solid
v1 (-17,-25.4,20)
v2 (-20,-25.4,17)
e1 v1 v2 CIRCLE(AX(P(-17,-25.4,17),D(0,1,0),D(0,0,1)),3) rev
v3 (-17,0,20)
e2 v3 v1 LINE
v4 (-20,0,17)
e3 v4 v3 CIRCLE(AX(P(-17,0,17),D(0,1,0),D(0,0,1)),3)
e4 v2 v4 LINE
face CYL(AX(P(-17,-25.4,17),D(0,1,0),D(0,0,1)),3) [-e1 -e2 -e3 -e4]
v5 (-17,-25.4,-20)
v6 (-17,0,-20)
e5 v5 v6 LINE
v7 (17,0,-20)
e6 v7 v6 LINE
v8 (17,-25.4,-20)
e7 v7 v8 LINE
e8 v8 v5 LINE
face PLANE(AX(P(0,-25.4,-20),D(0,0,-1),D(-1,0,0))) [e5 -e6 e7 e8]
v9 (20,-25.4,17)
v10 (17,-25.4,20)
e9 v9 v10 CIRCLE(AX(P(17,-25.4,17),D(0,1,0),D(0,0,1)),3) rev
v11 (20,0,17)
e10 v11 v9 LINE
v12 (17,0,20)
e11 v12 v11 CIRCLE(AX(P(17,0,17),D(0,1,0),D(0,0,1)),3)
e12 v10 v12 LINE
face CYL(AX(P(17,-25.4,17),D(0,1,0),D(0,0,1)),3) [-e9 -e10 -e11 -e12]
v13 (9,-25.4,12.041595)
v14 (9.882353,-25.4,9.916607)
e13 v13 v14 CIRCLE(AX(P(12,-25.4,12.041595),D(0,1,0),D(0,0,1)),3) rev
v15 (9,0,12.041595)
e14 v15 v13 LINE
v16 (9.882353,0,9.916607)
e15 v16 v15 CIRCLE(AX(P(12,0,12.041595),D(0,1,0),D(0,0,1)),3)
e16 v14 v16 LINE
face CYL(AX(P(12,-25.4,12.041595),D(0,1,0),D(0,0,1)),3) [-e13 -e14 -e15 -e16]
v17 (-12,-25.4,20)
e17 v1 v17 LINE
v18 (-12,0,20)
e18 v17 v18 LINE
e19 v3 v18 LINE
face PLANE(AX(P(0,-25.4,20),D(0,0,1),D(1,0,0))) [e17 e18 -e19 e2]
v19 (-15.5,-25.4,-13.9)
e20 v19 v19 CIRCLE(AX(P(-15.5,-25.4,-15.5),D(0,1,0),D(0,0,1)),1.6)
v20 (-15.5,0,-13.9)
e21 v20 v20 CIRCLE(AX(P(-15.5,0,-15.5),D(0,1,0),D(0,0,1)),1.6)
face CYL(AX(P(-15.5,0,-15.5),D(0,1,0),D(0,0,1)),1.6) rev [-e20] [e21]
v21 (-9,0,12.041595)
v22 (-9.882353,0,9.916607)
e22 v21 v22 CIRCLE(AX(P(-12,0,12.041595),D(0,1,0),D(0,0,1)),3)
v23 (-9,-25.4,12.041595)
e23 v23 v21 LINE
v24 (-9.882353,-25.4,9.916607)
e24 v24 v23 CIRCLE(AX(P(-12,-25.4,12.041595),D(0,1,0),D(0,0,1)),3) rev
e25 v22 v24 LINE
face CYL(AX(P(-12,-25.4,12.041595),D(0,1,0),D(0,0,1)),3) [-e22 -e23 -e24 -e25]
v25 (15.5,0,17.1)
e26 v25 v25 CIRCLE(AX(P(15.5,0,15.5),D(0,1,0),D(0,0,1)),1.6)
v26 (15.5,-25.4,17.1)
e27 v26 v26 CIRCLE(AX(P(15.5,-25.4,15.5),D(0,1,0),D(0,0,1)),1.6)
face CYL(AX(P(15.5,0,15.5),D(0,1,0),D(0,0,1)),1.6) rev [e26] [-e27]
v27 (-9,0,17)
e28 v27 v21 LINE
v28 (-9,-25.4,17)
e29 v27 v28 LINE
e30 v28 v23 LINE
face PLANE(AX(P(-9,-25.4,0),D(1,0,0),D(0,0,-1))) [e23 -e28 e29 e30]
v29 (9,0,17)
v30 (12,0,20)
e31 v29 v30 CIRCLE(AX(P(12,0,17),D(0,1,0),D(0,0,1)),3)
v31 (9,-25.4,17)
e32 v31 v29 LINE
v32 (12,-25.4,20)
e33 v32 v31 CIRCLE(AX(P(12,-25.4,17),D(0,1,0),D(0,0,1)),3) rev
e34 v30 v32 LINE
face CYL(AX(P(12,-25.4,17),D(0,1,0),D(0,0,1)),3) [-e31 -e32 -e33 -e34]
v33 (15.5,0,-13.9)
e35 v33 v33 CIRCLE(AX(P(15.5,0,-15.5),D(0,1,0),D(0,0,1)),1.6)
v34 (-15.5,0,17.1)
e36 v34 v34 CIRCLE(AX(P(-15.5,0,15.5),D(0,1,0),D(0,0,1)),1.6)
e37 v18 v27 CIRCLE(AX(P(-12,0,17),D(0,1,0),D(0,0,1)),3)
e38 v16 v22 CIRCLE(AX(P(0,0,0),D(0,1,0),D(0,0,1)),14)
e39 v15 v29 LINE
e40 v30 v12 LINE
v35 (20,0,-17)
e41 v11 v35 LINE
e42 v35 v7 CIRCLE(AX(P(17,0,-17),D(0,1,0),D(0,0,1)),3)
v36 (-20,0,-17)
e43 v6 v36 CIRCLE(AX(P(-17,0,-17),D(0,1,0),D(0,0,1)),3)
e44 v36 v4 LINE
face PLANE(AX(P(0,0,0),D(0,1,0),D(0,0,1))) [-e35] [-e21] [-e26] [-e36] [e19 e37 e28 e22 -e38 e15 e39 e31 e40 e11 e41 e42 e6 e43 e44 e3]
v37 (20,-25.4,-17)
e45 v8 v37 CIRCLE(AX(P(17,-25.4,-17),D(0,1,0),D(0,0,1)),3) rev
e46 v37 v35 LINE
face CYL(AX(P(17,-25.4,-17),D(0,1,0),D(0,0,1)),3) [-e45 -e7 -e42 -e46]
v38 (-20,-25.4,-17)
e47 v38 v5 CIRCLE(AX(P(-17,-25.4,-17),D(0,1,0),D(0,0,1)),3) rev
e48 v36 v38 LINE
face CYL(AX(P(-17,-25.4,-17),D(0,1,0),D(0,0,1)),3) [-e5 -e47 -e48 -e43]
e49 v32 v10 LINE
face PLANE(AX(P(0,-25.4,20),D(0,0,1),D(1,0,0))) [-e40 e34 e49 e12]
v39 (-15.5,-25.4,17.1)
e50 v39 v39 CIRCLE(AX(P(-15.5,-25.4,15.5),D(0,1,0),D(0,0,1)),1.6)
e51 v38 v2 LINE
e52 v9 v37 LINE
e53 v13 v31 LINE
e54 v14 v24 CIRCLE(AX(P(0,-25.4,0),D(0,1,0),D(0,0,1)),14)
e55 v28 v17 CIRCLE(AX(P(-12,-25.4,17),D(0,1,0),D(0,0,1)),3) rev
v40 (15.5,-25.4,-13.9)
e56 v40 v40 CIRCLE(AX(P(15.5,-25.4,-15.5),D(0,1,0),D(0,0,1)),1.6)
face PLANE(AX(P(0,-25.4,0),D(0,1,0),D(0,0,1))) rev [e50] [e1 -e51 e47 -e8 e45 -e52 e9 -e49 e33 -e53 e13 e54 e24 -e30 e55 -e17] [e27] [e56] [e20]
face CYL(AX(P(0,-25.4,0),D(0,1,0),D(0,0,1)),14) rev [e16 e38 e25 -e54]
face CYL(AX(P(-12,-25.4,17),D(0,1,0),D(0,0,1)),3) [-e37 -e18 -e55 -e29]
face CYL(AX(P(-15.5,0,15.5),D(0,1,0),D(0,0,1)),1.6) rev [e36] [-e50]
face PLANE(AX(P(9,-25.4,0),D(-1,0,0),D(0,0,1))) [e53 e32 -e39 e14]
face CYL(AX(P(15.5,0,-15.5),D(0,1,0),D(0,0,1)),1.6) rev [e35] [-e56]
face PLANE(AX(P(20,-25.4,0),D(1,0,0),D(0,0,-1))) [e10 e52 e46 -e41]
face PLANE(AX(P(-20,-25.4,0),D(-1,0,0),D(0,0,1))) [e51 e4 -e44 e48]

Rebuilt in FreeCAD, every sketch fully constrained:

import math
import FreeCAD as App
import Part
import Sketcher
from FreeCAD import Vector
Q = App.Units.Quantity


def edges_at(feature, points):
    """Names of the edges that pass closest to the given points."""
    edges = feature.Shape.Edges
    near = lambda p: min(range(len(edges)), key=lambda i: edges[i].distToShape(Part.Vertex(*p))[0])
    return sorted({f"Edge{near(p) + 1}" for p in points})

doc = App.newDocument("Part")
body = doc.addObject("PartDesign::Body", "Body")

sketch1 = body.newObject("Sketcher::SketchObject", "Sketch")
sketch1.AttachmentSupport = (doc.getObject("XZ_Plane"), [""])
sketch1.MapMode = "FlatFace"
sketch1.addGeometry([
    Part.LineSegment(Vector(-20, 20, 0), Vector(-9, 20, 0)),
    Part.LineSegment(Vector(-9, 20, 0), Vector(-9, 11, 0)),
    Part.ArcOfCircle(Part.Circle(Vector(0, 0, 0), Vector(0, 0, 1), 14), math.radians(130), math.radians(410)),
    Part.LineSegment(Vector(9, 11, 0), Vector(9, 20, 0)),
    Part.LineSegment(Vector(9, 20, 0), Vector(20, 20, 0)),
    Part.LineSegment(Vector(20, 20, 0), Vector(20, -20, 0)),
    Part.LineSegment(Vector(20, -20, 0), Vector(-20, -20, 0)),
    Part.LineSegment(Vector(-20, -20, 0), Vector(-20, 20, 0)),
], False)
sketch1.addConstraint([
    Sketcher.Constraint("Coincident", 0, 2, 1, 1),
    Sketcher.Constraint("Coincident", 1, 2, 2, 1),
    Sketcher.Constraint("Coincident", 2, 2, 3, 1),
    Sketcher.Constraint("Coincident", 3, 2, 4, 1),
    Sketcher.Constraint("Coincident", 4, 2, 5, 1),
    Sketcher.Constraint("Coincident", 5, 2, 6, 1),
    Sketcher.Constraint("Coincident", 6, 2, 7, 1),
    Sketcher.Constraint("Coincident", 7, 2, 0, 1),
    Sketcher.Constraint("Horizontal", 0),
    Sketcher.Constraint("Vertical", 1),
    Sketcher.Constraint("Vertical", 3),
    Sketcher.Constraint("Horizontal", 4),
    Sketcher.Constraint("Vertical", 5),
    Sketcher.Constraint("Horizontal", 6),
    Sketcher.Constraint("Vertical", 7),
    Sketcher.Constraint("Coincident", 2, 3, -1, 1),
    Sketcher.Constraint("Symmetric", 4, 2, 6, 2, -1, 1),
    Sketcher.Constraint("Symmetric", 0, 2, 3, 2, -2),
    Sketcher.Constraint("Equal", 6, 5),
    Sketcher.Constraint("Radius", 2, Q("14 mm")),
    Sketcher.Constraint("DistanceX", 0, 1, 0, 2, Q("11 mm")),
    Sketcher.Constraint("DistanceX", 6, 2, 6, 1, Q("40 mm")),
])
pad1 = body.newObject("PartDesign::Pad", "Pad")
pad1.Profile = sketch1
pad1.Length = 25.4

sketch2 = body.newObject("Sketcher::SketchObject", "Sketch001")
sketch2.AttachmentSupport = (doc.getObject("XZ_Plane"), [""])
sketch2.MapMode = "FlatFace"
sketch2.addGeometry([
    Part.Circle(Vector(-15.5, -15.5, 0), Vector(0, 0, 1), 1.6),
    Part.Circle(Vector(15.5, -15.5, 0), Vector(0, 0, 1), 1.6),
    Part.Circle(Vector(15.5, 15.5, 0), Vector(0, 0, 1), 1.6),
    Part.Circle(Vector(-15.5, 15.5, 0), Vector(0, 0, 1), 1.6),
], False)
sketch2.addConstraint([
    Sketcher.Constraint("Equal", 0, 1),
    Sketcher.Constraint("Equal", 1, 2),
    Sketcher.Constraint("Equal", 2, 3),
    Sketcher.Constraint("Symmetric", 0, 3, 2, 3, -1, 1),
    Sketcher.Constraint("Symmetric", 1, 3, 3, 3, -1, 1),
    Sketcher.Constraint("Symmetric", 0, 3, 1, 3, -2),
    Sketcher.Constraint("Diameter", 0, Q("3.2 mm")),
    Sketcher.Constraint("DistanceX", 0, 3, 1, 3, Q("31 mm")),
    Sketcher.Constraint("DistanceY", 1, 3, 2, 3, Q("31 mm")),
])
doc.recompute()
hole = body.newObject("PartDesign::Hole", "Hole")
hole.Profile = sketch2
hole.ThreadType = "None"
hole.Diameter = 3.2
hole.DepthType = "ThroughAll"
hole.Reversed = True
doc.recompute()

fillet = body.newObject("PartDesign::Fillet", "Fillet")
fillet.Base = (hole, edges_at(hole, [
    (-9, -12.7, 10.724),
    (-9, -12.7, 20),
    (-20, -12.7, 20),
    (-20, -12.7, -20),
    (20, -12.7, -20),
    (20, -12.7, 20),
    (9, -12.7, 20),
    (9, -12.7, 10.724),
]))
fillet.Radius = 3

doc.recompute()
